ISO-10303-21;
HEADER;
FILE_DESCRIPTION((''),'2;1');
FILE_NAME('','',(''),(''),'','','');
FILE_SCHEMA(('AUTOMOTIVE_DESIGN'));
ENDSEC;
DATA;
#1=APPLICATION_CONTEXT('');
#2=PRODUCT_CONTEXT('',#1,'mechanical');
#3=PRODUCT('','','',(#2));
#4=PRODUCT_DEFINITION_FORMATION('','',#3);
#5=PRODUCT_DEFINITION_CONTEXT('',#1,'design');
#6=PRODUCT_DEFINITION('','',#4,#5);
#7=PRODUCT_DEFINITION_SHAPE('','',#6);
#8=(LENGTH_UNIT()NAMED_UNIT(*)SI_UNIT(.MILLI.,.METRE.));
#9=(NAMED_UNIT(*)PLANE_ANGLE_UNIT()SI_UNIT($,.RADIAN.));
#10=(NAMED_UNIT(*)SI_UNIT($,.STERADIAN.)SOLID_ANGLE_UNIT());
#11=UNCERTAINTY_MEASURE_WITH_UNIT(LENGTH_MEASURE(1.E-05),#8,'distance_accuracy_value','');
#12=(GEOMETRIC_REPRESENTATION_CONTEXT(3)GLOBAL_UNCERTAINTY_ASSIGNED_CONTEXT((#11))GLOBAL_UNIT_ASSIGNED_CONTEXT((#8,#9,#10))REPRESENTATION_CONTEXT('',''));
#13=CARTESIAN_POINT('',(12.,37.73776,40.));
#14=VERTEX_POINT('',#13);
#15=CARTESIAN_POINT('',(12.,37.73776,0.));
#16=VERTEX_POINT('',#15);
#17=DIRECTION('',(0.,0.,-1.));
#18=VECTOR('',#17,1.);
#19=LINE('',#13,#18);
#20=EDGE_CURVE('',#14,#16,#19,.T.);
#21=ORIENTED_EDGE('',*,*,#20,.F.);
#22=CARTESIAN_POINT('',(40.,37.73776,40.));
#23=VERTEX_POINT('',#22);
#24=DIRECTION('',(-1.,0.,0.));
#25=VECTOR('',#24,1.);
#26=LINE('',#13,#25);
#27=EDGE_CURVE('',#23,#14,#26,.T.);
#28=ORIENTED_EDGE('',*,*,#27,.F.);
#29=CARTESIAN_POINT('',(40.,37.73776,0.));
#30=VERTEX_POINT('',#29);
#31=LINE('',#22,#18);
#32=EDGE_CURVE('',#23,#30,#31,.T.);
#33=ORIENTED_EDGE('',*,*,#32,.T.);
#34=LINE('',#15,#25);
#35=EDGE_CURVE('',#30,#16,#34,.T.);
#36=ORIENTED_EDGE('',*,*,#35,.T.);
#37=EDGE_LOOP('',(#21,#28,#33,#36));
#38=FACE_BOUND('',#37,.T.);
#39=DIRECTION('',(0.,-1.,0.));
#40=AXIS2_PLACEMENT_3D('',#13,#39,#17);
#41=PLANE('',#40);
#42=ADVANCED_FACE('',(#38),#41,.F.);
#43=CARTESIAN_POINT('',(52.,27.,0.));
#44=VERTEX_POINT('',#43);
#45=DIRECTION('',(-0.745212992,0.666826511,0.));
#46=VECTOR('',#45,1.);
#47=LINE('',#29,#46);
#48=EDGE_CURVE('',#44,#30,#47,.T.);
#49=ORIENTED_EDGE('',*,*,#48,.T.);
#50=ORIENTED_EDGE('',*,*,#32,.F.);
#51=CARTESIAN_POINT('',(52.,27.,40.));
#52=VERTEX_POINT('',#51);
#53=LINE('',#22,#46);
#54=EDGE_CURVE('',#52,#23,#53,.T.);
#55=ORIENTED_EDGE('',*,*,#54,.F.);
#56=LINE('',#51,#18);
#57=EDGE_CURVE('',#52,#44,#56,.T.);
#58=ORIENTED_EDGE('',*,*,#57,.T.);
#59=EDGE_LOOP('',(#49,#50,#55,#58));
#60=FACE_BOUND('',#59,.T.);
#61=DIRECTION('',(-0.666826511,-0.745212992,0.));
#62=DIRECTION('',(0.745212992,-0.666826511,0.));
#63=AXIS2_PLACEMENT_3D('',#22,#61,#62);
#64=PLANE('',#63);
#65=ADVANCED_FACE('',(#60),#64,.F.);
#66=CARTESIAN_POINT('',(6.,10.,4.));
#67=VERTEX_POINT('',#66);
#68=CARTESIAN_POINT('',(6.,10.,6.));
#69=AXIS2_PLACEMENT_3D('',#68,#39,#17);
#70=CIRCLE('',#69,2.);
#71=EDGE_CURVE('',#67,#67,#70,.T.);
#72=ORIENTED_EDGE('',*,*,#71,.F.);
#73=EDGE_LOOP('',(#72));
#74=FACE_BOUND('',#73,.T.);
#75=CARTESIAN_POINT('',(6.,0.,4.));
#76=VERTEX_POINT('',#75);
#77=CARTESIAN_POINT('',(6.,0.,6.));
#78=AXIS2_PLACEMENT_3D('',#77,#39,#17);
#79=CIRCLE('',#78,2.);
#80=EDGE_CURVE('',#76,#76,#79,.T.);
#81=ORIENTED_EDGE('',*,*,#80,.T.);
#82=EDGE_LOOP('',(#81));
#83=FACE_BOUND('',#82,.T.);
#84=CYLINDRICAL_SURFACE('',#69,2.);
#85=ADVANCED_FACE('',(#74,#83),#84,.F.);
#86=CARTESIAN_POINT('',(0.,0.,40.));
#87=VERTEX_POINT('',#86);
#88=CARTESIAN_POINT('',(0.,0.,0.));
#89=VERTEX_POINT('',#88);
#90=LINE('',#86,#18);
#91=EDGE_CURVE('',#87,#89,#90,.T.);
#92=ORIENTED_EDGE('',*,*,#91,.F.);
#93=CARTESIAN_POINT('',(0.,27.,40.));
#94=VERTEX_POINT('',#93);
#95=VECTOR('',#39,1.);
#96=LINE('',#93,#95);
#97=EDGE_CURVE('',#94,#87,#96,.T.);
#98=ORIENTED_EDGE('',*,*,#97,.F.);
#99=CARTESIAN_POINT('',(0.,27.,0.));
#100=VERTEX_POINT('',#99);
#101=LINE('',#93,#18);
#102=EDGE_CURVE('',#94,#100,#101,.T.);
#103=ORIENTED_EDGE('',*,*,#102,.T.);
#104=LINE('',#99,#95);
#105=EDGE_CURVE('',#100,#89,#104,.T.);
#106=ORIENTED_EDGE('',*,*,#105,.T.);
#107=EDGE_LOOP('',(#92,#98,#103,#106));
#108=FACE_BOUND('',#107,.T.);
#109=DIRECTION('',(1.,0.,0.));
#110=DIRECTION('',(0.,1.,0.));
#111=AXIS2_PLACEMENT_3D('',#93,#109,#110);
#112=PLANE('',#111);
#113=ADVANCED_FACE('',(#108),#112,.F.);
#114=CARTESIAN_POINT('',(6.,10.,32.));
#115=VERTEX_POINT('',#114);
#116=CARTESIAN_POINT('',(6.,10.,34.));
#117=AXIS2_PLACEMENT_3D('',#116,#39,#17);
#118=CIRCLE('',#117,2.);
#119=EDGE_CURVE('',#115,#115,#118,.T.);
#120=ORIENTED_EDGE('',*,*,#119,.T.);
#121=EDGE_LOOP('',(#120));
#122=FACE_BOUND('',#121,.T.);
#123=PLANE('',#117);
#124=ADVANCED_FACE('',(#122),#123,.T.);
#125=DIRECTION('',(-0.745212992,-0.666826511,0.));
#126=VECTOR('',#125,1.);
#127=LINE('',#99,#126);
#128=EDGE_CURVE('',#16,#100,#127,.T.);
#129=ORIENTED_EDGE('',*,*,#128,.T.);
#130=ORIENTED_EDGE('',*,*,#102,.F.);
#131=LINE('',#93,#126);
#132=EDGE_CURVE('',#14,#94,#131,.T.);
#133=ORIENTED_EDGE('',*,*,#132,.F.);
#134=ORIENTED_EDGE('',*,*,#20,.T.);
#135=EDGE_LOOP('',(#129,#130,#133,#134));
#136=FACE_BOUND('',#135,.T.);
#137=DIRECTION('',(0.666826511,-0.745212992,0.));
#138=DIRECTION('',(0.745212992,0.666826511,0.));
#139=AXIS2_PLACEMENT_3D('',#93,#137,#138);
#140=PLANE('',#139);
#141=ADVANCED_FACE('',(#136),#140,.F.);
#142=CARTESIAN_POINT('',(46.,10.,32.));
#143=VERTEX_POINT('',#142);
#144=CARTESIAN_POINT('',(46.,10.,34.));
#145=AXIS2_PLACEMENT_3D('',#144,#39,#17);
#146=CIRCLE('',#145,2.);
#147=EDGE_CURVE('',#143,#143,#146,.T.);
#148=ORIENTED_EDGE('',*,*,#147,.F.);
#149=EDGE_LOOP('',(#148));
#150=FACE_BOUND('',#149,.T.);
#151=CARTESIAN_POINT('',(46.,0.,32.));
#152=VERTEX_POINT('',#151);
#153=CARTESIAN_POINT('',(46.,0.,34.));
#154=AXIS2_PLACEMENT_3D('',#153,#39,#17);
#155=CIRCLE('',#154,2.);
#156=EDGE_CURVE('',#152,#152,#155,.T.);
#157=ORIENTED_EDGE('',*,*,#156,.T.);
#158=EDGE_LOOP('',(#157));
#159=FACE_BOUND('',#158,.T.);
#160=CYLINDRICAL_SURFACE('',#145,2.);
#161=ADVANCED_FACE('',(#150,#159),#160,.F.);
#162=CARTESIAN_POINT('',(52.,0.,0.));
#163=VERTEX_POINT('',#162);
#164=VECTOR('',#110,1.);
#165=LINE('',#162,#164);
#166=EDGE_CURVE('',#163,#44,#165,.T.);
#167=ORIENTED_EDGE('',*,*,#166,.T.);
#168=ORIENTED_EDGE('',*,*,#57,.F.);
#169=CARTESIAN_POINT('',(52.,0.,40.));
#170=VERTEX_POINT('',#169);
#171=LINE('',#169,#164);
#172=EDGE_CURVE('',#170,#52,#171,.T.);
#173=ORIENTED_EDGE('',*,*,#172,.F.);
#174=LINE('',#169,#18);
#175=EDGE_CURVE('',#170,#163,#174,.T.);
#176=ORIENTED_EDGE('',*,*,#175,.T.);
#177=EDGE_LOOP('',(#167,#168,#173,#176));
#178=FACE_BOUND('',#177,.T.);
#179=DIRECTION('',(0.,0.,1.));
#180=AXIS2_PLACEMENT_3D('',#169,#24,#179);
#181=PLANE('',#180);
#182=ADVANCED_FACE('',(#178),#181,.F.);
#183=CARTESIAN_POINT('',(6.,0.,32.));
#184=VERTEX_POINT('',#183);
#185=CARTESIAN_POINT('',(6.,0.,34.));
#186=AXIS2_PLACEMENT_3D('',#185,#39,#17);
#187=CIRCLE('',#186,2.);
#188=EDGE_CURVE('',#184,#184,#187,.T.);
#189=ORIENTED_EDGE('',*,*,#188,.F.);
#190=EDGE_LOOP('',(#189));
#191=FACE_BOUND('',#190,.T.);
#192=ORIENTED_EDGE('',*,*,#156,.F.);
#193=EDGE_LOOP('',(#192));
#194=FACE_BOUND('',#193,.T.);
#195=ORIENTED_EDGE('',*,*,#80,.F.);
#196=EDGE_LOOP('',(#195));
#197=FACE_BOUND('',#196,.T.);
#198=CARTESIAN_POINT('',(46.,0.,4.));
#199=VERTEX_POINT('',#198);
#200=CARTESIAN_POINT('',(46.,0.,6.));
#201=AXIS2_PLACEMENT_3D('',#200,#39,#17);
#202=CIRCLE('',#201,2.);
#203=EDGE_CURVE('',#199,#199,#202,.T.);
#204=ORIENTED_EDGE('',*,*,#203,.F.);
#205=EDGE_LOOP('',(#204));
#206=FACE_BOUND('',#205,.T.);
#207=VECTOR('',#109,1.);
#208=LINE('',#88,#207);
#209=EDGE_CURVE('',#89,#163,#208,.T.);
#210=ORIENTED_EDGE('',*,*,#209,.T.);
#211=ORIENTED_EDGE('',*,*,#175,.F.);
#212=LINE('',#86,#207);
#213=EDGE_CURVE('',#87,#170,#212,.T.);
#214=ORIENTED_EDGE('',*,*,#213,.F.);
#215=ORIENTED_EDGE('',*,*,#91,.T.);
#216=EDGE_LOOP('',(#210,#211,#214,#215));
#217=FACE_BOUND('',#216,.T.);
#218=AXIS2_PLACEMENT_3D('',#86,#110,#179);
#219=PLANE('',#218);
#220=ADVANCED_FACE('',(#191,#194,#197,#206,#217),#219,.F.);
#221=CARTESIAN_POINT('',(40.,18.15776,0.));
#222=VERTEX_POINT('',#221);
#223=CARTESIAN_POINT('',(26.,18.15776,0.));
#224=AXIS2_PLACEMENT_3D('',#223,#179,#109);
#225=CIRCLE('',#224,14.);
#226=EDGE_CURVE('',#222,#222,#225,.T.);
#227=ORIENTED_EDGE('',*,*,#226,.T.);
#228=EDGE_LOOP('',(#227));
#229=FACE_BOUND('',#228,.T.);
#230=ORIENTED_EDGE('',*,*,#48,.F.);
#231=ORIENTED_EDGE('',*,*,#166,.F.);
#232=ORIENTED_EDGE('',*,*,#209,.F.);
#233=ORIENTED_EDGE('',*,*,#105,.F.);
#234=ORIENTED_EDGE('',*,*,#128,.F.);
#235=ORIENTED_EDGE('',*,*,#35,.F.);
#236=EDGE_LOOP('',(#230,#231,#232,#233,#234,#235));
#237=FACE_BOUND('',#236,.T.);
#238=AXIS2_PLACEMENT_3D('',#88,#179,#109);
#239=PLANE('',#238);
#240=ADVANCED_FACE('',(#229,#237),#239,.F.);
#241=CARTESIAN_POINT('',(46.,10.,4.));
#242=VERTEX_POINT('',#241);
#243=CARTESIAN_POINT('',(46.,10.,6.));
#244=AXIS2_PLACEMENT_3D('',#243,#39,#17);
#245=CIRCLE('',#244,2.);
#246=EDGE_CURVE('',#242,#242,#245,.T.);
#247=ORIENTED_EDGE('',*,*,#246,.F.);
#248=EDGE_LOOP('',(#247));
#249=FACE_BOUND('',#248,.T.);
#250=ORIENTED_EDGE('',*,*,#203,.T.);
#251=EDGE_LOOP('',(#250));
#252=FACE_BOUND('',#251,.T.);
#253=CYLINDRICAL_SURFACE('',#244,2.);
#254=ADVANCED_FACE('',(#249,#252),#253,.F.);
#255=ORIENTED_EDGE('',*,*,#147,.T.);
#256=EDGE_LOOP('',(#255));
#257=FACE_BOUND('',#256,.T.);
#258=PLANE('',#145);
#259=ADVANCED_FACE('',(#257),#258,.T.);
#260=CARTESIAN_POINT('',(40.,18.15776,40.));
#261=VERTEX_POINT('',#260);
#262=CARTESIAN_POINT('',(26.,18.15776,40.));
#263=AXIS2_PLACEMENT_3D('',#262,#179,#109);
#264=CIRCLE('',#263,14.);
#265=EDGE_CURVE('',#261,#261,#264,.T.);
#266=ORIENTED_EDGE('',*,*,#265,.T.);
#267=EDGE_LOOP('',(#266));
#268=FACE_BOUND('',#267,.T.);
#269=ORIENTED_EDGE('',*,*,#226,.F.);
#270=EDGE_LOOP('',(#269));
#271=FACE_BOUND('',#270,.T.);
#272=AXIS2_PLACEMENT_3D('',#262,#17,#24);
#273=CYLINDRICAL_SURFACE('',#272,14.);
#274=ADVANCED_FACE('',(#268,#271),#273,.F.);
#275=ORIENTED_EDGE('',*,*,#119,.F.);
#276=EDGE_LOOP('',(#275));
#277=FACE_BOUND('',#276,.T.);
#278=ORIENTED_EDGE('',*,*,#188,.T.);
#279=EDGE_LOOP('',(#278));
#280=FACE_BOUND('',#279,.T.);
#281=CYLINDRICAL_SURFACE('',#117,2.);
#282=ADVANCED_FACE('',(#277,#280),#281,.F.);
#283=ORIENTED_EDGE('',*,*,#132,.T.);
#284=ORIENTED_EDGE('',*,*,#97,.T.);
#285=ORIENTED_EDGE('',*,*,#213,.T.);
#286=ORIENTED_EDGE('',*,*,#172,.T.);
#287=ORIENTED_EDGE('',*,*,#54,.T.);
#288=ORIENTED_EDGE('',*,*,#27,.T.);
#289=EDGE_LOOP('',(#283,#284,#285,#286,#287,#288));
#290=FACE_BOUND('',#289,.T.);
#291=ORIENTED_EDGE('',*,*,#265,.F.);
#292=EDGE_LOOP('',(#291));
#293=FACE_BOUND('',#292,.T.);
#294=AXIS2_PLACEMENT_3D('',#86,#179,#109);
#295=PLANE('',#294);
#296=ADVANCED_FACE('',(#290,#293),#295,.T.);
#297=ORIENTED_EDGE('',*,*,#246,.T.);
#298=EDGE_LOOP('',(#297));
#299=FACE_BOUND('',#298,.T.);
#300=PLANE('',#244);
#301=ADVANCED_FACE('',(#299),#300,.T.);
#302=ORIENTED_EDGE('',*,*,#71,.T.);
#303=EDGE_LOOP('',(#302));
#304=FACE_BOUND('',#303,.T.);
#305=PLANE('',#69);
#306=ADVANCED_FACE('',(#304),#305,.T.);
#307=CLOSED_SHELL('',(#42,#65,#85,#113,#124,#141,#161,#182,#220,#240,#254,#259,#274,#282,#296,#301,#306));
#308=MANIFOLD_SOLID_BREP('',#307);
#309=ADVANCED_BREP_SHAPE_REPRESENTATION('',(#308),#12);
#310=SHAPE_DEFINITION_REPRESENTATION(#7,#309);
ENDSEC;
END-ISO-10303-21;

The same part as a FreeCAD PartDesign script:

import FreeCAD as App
import Part
import Sketcher


def add_polygon(sketch, points):
    """Adds a closed chain of lines whose ends are joined by coincident constraints."""
    first, n = sketch.GeometryCount, len(points)
    for a, b in zip(points, points[1:] + points[:1]):
        sketch.addGeometry(Part.LineSegment(App.Vector(*a, 0), App.Vector(*b, 0)), False)
    for i in range(n):
        sketch.addConstraint(Sketcher.Constraint("Coincident", first + i, 2, first + (i + 1) % n, 1))

doc = App.newDocument("Part")
body = doc.addObject("PartDesign::Body", "Body")

# Sketch on XY plane
sketch1 = body.newObject("Sketcher::SketchObject", "Sketch")
sketch1.AttachmentSupport = (doc.getObject("XY_Plane"), [""])
sketch1.MapMode = "FlatFace"
add_polygon(sketch1, [(0, 0), (52, 0), (52, 27), (40, 37.73776), (12, 37.73776), (0, 27)])  # lines 0-5
sketch1.addGeometry(Part.Circle(App.Vector(26, 18.15776, 0), App.Vector(0, 0, 1), 14), False)  # 6
sketch1.addConstraint(Sketcher.Constraint("Horizontal", 0))
sketch1.addConstraint(Sketcher.Constraint("Vertical", 1))
sketch1.addConstraint(Sketcher.Constraint("Horizontal", 3))
sketch1.addConstraint(Sketcher.Constraint("Vertical", 5))
sketch1.addConstraint(Sketcher.Constraint("Coincident", 5, 2, -1, 1))
sketch1.addConstraint(Sketcher.Constraint("Horizontal", 1, 2, 4, 2))
sketch1.addConstraint(Sketcher.Constraint("Equal", 2, 4))
sketch1.addConstraint(Sketcher.Constraint("Diameter", 6, 28.0))
sketch1.addConstraint(Sketcher.Constraint("DistanceX", 0, 1, 0, 2, 52.0))
sketch1.addConstraint(Sketcher.Constraint("DistanceX", 3, 2, 3, 1, 28.0))
sketch1.addConstraint(Sketcher.Constraint("DistanceY", 1, 1, 1, 2, 27.0))
sketch1.addConstraint(Sketcher.Constraint("DistanceX", -1, 1, 6, 3, 26.0))
sketch1.addConstraint(Sketcher.Constraint("DistanceY", 6, 3, 2, 2, 19.58))
sketch1.addConstraint(Sketcher.Constraint("Distance", 2, 16.102779))
pad1 = body.newObject("PartDesign::Pad", "Pad")
pad1.Profile = sketch1
pad1.Length = 40

# Sketch on XZ plane
sketch2 = body.newObject("Sketcher::SketchObject", "Sketch001")
sketch2.AttachmentSupport = (doc.getObject("XZ_Plane"), [""])
sketch2.MapMode = "FlatFace"
sketch2.addGeometry(Part.Circle(App.Vector(6, 34, 0), App.Vector(0, 0, 1), 2), False)
sketch2.addGeometry(Part.Circle(App.Vector(46, 34, 0), App.Vector(0, 0, 1), 2), False)
sketch2.addGeometry(Part.Circle(App.Vector(6, 6, 0), App.Vector(0, 0, 1), 2), False)
sketch2.addGeometry(Part.Circle(App.Vector(46, 6, 0), App.Vector(0, 0, 1), 2), False)
sketch2.addConstraint(Sketcher.Constraint("Equal", 0, 1))
sketch2.addConstraint(Sketcher.Constraint("Equal", 1, 2))
sketch2.addConstraint(Sketcher.Constraint("Equal", 2, 3))
sketch2.addConstraint(Sketcher.Constraint("Horizontal", 0, 3, 1, 3))
sketch2.addConstraint(Sketcher.Constraint("Horizontal", 2, 3, 3, 3))
sketch2.addConstraint(Sketcher.Constraint("Vertical", 0, 3, 2, 3))
sketch2.addConstraint(Sketcher.Constraint("Vertical", 1, 3, 3, 3))
sketch2.addConstraint(Sketcher.Constraint("Diameter", 0, 4.0))
sketch2.addConstraint(Sketcher.Constraint("DistanceX", -1, 1, 0, 3, 6.0))
sketch2.addConstraint(Sketcher.Constraint("DistanceY", -1, 1, 0, 3, 34.0))
sketch2.addConstraint(Sketcher.Constraint("DistanceX", -1, 1, 1, 3, 46.0))
sketch2.addConstraint(Sketcher.Constraint("DistanceY", -1, 1, 2, 3, 6.0))
pocket1 = body.newObject("PartDesign::Pocket", "Pocket")
pocket1.Profile = sketch2
pocket1.Length = 10

doc.recompute()
